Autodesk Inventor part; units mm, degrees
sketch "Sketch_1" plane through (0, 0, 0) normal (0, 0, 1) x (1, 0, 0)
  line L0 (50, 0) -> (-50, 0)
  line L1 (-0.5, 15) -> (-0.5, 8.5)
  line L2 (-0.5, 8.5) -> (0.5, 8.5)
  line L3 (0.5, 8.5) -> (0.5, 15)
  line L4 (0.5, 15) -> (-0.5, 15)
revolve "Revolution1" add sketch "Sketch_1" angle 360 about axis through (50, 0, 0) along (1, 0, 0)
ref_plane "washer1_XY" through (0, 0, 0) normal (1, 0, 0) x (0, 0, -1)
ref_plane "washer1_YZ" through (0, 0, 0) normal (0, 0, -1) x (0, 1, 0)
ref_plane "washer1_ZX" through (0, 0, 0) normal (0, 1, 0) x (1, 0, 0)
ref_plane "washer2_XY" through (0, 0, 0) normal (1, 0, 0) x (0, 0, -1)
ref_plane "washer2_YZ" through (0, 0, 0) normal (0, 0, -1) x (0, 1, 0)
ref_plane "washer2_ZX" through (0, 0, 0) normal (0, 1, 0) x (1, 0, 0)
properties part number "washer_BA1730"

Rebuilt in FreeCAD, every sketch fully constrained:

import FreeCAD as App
import Part
import Sketcher

V = App.Vector
Q = App.Units.Quantity


def add_polygon(sketch, points):
    """Adds a closed chain of lines whose ends are joined by coincident constraints."""
    first, n = sketch.GeometryCount, len(points)
    for a, b in zip(points, points[1:] + points[:1]):
        sketch.addGeometry(Part.LineSegment(App.Vector(*a, 0), App.Vector(*b, 0)), False)
    for i in range(n):
        sketch.addConstraint(Sketcher.Constraint("Coincident", first + i, 2, first + (i + 1) % n, 1))

doc = App.newDocument("Part")
body = doc.addObject("PartDesign::Body", "Body")

# Sketch on XY plane
sketch1 = body.newObject("Sketcher::SketchObject", "Sketch")
sketch1.AttachmentSupport = (doc.getObject("XY_Plane"), [""])
sketch1.MapMode = "FlatFace"
add_polygon(sketch1, [(0.5, 15), (-0.5, 15), (-0.5, 8.5), (0.5, 8.5)])  # lines 0-3
sketch1.addConstraint([
    Sketcher.Constraint("Horizontal", 0),
    Sketcher.Constraint("Vertical", 1),
    Sketcher.Constraint("Horizontal", 2),
    Sketcher.Constraint("Vertical", 3),
    Sketcher.Constraint("DistanceX", 0, 2, 0, 1, Q("1 mm")),
    Sketcher.Constraint("DistanceY", 1, 2, 1, 1, Q("6.5 mm")),
    Sketcher.Constraint("DistanceY", -1, 1, 0, 2, Q("15 mm")),
    Sketcher.Constraint("DistanceX", 0, 2, -1, 1, Q("0.5 mm")),
])
revolution = body.newObject("PartDesign::Revolution", "Revolution")
revolution.Profile = sketch1
revolution.ReferenceAxis = (sketch1, ["H_Axis"])
revolution.Angle = 360

doc.recompute()
